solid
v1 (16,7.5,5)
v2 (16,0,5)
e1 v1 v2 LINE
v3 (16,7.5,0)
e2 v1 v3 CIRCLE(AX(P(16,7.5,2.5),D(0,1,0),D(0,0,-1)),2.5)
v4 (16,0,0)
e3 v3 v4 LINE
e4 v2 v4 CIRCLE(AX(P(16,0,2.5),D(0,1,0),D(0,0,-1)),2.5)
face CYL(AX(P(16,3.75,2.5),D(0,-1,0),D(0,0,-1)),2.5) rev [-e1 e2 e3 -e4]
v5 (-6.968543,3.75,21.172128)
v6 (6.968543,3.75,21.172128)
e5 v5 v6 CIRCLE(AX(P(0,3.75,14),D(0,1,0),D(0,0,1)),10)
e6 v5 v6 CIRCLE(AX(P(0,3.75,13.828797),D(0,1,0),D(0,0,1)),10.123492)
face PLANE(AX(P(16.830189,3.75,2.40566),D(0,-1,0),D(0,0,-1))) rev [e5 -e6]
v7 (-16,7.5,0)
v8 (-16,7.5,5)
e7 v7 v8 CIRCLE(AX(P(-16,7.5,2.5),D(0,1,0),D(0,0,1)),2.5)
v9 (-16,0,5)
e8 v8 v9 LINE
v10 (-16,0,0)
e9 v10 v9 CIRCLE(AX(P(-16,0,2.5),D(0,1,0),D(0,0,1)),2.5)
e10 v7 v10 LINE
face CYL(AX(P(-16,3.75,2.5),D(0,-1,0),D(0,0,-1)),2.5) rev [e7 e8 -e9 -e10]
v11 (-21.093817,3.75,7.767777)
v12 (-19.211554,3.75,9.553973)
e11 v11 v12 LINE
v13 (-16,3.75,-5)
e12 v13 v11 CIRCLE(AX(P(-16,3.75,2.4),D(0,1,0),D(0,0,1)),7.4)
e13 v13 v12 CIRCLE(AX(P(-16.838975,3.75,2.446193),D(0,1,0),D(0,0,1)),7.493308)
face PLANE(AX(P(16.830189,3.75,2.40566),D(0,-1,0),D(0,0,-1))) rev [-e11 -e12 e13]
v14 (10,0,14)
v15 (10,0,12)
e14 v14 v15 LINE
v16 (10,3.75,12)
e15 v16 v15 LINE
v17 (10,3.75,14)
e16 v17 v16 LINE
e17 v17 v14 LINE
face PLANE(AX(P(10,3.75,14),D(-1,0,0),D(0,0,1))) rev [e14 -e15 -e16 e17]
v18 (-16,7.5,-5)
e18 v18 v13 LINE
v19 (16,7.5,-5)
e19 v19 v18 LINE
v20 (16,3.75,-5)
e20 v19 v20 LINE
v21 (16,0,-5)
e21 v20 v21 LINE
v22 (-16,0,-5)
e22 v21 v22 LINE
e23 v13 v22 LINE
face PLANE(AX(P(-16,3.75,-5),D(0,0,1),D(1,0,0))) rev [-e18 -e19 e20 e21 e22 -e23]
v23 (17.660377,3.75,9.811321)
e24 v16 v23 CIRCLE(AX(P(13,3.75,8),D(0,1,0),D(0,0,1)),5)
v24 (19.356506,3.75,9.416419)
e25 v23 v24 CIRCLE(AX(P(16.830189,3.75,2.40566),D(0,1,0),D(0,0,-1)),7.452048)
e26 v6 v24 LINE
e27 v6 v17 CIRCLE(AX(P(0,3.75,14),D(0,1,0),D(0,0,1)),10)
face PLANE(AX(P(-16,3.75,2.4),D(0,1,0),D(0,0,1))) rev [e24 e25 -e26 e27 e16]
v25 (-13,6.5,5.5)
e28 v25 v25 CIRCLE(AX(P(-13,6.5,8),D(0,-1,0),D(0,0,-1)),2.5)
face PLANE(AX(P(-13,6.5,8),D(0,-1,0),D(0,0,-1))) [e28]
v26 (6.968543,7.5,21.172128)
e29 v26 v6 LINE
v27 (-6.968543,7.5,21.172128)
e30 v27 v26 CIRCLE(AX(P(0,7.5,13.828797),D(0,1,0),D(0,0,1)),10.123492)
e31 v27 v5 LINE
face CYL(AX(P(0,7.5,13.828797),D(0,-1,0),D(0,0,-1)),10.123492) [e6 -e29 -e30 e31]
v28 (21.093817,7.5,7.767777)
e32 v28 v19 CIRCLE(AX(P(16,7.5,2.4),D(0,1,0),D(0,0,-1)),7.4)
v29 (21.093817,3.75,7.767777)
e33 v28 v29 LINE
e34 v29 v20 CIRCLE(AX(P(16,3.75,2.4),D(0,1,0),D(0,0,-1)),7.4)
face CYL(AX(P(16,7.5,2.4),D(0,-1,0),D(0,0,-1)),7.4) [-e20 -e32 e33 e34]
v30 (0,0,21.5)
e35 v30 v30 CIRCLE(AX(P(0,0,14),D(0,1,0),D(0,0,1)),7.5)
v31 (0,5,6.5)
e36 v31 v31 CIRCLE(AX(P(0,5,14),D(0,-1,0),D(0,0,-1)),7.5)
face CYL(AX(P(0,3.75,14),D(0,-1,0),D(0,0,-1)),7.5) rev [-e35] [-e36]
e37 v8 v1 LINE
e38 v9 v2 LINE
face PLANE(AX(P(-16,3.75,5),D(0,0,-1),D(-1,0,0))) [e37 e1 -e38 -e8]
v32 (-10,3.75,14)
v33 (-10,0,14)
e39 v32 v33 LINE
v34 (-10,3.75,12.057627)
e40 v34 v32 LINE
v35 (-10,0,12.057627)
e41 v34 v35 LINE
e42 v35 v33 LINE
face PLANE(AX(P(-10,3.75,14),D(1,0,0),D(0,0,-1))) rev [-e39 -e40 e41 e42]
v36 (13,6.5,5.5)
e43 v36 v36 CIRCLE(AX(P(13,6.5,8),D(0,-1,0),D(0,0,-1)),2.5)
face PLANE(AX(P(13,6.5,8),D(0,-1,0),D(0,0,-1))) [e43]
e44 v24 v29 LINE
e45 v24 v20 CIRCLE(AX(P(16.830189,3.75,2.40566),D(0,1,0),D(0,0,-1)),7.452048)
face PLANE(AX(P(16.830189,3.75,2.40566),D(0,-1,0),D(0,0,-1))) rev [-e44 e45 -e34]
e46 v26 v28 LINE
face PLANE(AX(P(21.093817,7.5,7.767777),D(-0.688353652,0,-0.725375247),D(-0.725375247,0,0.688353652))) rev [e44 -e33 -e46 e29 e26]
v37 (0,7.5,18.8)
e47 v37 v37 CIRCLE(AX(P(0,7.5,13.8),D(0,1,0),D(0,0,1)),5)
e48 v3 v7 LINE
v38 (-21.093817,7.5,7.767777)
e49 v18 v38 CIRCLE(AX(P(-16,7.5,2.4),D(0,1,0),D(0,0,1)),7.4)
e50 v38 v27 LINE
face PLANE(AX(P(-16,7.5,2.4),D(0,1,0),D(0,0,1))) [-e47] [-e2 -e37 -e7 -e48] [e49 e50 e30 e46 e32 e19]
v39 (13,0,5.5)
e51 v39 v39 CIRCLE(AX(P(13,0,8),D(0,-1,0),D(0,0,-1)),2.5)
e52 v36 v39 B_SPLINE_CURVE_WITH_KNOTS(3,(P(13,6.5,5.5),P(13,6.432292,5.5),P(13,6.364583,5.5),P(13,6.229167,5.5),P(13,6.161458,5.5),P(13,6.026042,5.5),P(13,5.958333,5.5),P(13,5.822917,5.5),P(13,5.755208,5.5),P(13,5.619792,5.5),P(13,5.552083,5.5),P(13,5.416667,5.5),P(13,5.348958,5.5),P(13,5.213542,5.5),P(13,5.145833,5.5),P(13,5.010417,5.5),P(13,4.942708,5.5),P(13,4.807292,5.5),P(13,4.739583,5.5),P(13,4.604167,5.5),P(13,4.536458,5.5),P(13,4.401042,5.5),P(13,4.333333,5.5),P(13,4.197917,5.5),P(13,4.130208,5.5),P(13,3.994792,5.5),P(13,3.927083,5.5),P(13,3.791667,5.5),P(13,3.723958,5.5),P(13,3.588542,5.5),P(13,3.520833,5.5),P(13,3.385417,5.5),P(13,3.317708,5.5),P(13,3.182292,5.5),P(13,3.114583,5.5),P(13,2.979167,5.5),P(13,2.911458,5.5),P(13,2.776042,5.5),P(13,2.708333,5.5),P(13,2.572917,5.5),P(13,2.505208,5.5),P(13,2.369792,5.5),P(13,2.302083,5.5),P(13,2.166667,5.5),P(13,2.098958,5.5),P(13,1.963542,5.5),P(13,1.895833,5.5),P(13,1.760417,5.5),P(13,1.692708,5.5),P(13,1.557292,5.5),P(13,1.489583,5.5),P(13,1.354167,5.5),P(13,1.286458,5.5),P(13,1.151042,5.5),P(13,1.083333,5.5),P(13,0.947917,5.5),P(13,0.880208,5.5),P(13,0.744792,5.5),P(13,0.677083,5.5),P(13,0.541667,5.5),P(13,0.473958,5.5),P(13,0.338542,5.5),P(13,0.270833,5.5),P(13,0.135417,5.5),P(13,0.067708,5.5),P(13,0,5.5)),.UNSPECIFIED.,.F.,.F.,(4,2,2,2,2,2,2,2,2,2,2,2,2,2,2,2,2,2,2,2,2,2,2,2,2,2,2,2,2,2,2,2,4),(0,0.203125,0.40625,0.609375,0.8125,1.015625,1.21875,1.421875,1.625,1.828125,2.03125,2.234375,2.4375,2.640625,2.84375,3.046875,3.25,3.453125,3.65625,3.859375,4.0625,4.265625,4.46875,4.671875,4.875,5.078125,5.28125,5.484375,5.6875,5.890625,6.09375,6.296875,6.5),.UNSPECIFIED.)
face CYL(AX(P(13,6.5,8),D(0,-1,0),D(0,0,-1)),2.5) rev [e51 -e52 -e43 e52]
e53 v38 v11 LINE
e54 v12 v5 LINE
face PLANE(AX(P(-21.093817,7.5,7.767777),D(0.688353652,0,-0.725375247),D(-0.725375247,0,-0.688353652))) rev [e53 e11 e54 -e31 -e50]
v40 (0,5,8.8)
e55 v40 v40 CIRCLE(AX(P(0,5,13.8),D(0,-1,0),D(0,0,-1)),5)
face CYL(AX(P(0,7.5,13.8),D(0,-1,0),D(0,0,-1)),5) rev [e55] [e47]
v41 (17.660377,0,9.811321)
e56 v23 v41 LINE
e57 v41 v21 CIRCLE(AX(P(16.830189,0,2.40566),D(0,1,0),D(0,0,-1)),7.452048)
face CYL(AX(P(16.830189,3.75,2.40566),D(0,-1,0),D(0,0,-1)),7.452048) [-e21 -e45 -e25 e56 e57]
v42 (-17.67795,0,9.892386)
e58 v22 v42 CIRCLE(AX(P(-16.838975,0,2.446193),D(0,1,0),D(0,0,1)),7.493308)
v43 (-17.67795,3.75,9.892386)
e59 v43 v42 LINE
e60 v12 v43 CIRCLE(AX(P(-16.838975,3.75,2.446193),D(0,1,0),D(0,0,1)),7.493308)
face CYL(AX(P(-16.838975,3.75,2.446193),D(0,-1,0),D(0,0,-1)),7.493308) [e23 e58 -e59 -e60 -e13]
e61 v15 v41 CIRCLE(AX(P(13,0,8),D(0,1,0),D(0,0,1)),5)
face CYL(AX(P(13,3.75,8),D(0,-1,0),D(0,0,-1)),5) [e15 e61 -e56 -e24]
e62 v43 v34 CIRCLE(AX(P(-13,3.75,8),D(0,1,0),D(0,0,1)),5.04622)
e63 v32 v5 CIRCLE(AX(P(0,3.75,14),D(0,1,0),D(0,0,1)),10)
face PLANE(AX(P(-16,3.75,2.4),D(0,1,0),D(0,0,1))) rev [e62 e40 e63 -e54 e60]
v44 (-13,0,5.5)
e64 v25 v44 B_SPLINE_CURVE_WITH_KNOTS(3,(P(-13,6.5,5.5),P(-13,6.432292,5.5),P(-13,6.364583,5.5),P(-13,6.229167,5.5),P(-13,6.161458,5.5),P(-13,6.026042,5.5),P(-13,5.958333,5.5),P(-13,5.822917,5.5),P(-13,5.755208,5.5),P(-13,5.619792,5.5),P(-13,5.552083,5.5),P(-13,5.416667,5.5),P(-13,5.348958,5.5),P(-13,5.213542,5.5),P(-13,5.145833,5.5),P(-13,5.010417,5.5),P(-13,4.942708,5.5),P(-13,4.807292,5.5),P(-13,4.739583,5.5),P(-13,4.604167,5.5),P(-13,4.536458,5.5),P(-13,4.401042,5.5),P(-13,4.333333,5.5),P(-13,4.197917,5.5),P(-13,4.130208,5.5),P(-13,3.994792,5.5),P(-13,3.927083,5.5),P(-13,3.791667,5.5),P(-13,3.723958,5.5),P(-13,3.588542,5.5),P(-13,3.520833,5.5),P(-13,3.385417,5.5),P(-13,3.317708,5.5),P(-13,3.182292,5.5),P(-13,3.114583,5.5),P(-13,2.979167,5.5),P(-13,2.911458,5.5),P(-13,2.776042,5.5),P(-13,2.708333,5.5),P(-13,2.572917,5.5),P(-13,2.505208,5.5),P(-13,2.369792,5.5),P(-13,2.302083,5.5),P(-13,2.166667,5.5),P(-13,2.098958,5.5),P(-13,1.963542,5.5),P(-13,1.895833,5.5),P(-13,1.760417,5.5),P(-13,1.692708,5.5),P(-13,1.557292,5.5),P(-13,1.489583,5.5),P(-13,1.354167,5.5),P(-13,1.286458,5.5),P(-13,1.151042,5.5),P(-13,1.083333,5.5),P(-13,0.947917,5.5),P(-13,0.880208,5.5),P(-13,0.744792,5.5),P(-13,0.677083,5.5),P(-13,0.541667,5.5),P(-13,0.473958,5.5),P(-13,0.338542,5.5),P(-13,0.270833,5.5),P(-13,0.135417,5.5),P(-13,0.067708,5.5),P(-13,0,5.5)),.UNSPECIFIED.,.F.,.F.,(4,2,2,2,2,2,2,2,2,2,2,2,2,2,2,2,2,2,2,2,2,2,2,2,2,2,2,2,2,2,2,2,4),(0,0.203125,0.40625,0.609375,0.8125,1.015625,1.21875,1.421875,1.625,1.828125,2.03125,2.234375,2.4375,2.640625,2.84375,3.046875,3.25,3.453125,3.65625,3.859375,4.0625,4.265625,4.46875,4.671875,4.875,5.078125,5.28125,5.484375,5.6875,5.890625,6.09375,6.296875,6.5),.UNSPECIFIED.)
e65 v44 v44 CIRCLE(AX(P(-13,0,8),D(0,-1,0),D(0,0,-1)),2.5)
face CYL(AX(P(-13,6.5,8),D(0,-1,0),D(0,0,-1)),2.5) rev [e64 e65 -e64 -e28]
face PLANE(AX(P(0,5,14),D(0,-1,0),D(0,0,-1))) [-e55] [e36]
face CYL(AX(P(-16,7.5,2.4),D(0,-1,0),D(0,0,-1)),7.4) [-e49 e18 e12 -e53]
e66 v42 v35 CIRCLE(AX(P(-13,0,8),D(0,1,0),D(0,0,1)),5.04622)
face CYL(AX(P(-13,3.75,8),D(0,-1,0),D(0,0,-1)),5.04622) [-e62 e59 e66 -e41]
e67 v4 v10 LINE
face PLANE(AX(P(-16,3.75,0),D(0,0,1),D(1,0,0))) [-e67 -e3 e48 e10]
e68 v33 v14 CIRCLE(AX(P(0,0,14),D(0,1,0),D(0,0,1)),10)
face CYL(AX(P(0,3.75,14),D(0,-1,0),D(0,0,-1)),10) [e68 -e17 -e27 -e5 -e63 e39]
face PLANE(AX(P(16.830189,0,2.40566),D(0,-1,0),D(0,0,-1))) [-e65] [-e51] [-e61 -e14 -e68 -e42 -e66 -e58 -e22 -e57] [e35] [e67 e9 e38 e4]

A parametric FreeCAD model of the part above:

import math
import FreeCAD as App
import Part
import Sketcher

V = App.Vector
Q = App.Units.Quantity

doc = App.newDocument("Part")
body = doc.addObject("PartDesign::Body", "Body")

# Sketch on XZ plane
sketch1 = body.newObject("Sketcher::SketchObject", "Sketch")
sketch1.AttachmentSupport = (doc.getObject("XZ_Plane"), [""])
sketch1.MapMode = "FlatFace"
sketch1.addGeometry([
    Part.LineSegment(V(16, -5, 0), V(-16, -5, 0)),  # 0
    Part.ArcOfCircle(Part.Circle(V(-16.8, 2.4, 0), V(0, 0, 1), 7.5), math.radians(96), math.radians(276)),  # 1
    Part.ArcOfCircle(Part.Circle(V(-13, 8, 0), V(0, 0, 1), 5), math.radians(54), math.radians(158)),  # 2
    Part.LineSegment(V(-10, 12.1, 0), V(-10, 14, 0)),  # 3
    Part.ArcOfCircle(Part.Circle(V(0, 14, 0), V(0, 0, 1), 10), math.radians(0), math.radians(180)),  # 4
    Part.LineSegment(V(10, 14, 0), V(10, 12, 0)),  # 5
    Part.ArcOfCircle(Part.Circle(V(13, 8, 0), V(0, 0, 1), 5), math.radians(21), math.radians(127)),  # 6
    Part.ArcOfCircle(Part.Circle(V(16.8, 2.4, 0), V(0, 0, 1), 7.5), math.radians(-96), math.radians(84)),  # 7
    Part.Circle(V(0, 14, 0), V(0, 0, 1), 7.5),  # 8
    Part.Circle(V(13, 8, 0), V(0, 0, 1), 2.4),  # 9
    Part.Circle(V(-13, 8, 0), V(0, 0, 1), 2.4),  # 10
    Part.LineSegment(V(-16, 0, 0), V(16, 0, 0)),  # 11
    Part.ArcOfCircle(Part.Circle(V(16, 2.5, 0), V(0, 0, 1), 2.5), math.radians(-90), math.radians(90)),  # 12
    Part.LineSegment(V(16, 5, 0), V(-16, 5, 0)),  # 13
    Part.ArcOfCircle(Part.Circle(V(-16, 2.5, 0), V(0, 0, 1), 2.5), math.radians(90), math.radians(270)),  # 14
], False)
sketch1.addConstraint([
    Sketcher.Constraint("Coincident", 0, 2, 1, 2),
    Sketcher.Constraint("Coincident", 1, 1, 2, 2),
    Sketcher.Constraint("Coincident", 2, 1, 3, 1),
    Sketcher.Constraint("Tangent", 3, 2, 4, 2),
    Sketcher.Constraint("Tangent", 4, 1, 5, 1),
    Sketcher.Constraint("Coincident", 5, 2, 6, 2),
    Sketcher.Constraint("Coincident", 6, 1, 7, 2),
    Sketcher.Constraint("Coincident", 7, 1, 0, 1),
    Sketcher.Constraint("Tangent", 11, 2, 12, 1),
    Sketcher.Constraint("Tangent", 12, 2, 13, 1),
    Sketcher.Constraint("Tangent", 13, 2, 14, 1),
    Sketcher.Constraint("Tangent", 14, 2, 11, 1),
    Sketcher.Constraint("Horizontal", 0),
    Sketcher.Constraint("Vertical", 3),
    Sketcher.Constraint("Vertical", 5),
    Sketcher.Constraint("Horizontal", 11),
    Sketcher.Constraint("Horizontal", 13),
    Sketcher.Constraint("Coincident", 8, 3, 4, 3),
    Sketcher.Constraint("Coincident", 9, 3, 6, 3),
    Sketcher.Constraint("Coincident", 10, 3, 2, 3),
    Sketcher.Constraint("Equal", 9, 10),
    Sketcher.Constraint("Symmetric", 0, 2, 12, 2, -1, 1),
    Sketcher.Constraint("Symmetric", 11, 2, 14, 2, -1, 1),
    Sketcher.Constraint("Symmetric", 2, 3, 6, 3, -2),
    Sketcher.Constraint("PointOnObject", 4, 3, -2),
    Sketcher.Constraint("Vertical", 12, 3, 7, 1),
    Sketcher.Constraint("Diameter", 8, Q("15 mm")),
    Sketcher.Constraint("Radius", 4, Q("10 mm")),
    Sketcher.Constraint("Radius", 6, Q("5 mm")),
    Sketcher.Constraint("Diameter", 9, Q("4.8 mm")),
    Sketcher.Constraint("Radius", 12, Q("2.5 mm")),
    Sketcher.Constraint("DistanceX", 0, 2, 0, 1, Q("32 mm")),
    Sketcher.Constraint("DistanceY", 5, 2, 5, 1, Q("2 mm")),
    Sketcher.Constraint("DistanceX", 2, 3, -1, 1, Q("13 mm")),
    Sketcher.Constraint("DistanceY", -1, 1, 2, 3, Q("8 mm")),
    Sketcher.Constraint("Radius", 1, Q("7.493308 mm")),
    Sketcher.Constraint("Radius", 2, Q("5.04622 mm")),
    Sketcher.Constraint("Radius", 7, Q("7.452048 mm")),
    Sketcher.Constraint("DistanceX", -1, 1, 7, 3, Q("16.830189 mm")),
    Sketcher.Constraint("DistanceX", 1, 3, -1, 1, Q("16.838975 mm")),
])
pad1 = body.newObject("PartDesign::Pad", "Pad")
pad1.Profile = sketch1
pad1.Length = 3.75
pad1.Reversed = True

# Sketch on XZ plane
sketch2 = body.newObject("Sketcher::SketchObject", "Sketch001")
sketch2.AttachmentSupport = (doc.getObject("XZ_Plane"), [""])
sketch2.MapMode = "FlatFace"
sketch2.AttachmentOffset = App.Placement(V(0, 0, -3.75), App.Rotation())
sketch2.addGeometry([
    Part.LineSegment(V(16, -5, 0), V(-16, -5, 0)),  # 0
    Part.ArcOfCircle(Part.Circle(V(-16, 2.4, 0), V(0, 0, 1), 7.4), math.radians(133), math.radians(270)),  # 1
    Part.LineSegment(V(-21.1, 7.8, 0), V(-7, 21.2, 0)),  # 2
    Part.ArcOfCircle(Part.Circle(V(0, 13.8, 0), V(0, 0, 1), 10.1), math.radians(47), math.radians(133)),  # 3
    Part.LineSegment(V(7, 21.2, 0), V(21.1, 7.8, 0)),  # 4
    Part.ArcOfCircle(Part.Circle(V(16, 2.4, 0), V(0, 0, 1), 7.4), math.radians(-90), math.radians(47)),  # 5
    Part.Circle(V(0, 13.8, 0), V(0, 0, 1), 5),  # 6
    Part.LineSegment(V(-16, 0, 0), V(16, 0, 0)),  # 7
    Part.ArcOfCircle(Part.Circle(V(16, 2.5, 0), V(0, 0, 1), 2.5), math.radians(-90), math.radians(90)),  # 8
    Part.LineSegment(V(16, 5, 0), V(-16, 5, 0)),  # 9
    Part.ArcOfCircle(Part.Circle(V(-16, 2.5, 0), V(0, 0, 1), 2.5), math.radians(90), math.radians(270)),  # 10
], False)
sketch2.addConstraint([
    Sketcher.Constraint("Tangent", 0, 2, 1, 2),
    Sketcher.Constraint("Tangent", 1, 1, 2, 1),
    Sketcher.Constraint("Tangent", 2, 2, 3, 2),
    Sketcher.Constraint("Tangent", 3, 1, 4, 1),
    Sketcher.Constraint("Tangent", 4, 2, 5, 2),
    Sketcher.Constraint("Tangent", 5, 1, 0, 1),
    Sketcher.Constraint("Tangent", 7, 2, 8, 1),
    Sketcher.Constraint("Tangent", 8, 2, 9, 1),
    Sketcher.Constraint("Tangent", 9, 2, 10, 1),
    Sketcher.Constraint("Tangent", 10, 2, 7, 1),
    Sketcher.Constraint("Horizontal", 0),
    Sketcher.Constraint("Horizontal", 7),
    Sketcher.Constraint("Horizontal", 9),
    Sketcher.Constraint("Equal", 1, 5),
    Sketcher.Constraint("Symmetric", 0, 2, 8, 2, -1, 1),
    Sketcher.Constraint("Symmetric", 7, 2, 10, 2, -1, 1),
    Sketcher.Constraint("Symmetric", 2, 2, 3, 1, -2),
    Sketcher.Constraint("PointOnObject", 6, 3, -2),
    Sketcher.Constraint("Diameter", 6, Q("10 mm")),
    Sketcher.Constraint("Radius", 1, Q("7.4 mm")),
    Sketcher.Constraint("Radius", 8, Q("2.5 mm")),
    Sketcher.Constraint("DistanceX", 0, 2, 0, 1, Q("32 mm")),
    Sketcher.Constraint("DistanceY", -1, 1, 6, 3, Q("13.8 mm")),
    Sketcher.Constraint("Radius", 3, Q("10.123492 mm")),
    Sketcher.Constraint("Distance", 2, Q("19.473058 mm")),
])
pad2 = body.newObject("PartDesign::Pad", "Pad001")
pad2.Profile = sketch2
pad2.Length = 3.75
pad2.Reversed = True

# Sketch on XZ plane
sketch3 = body.newObject("Sketcher::SketchObject", "Sketch002")
sketch3.AttachmentSupport = (doc.getObject("XZ_Plane"), [""])
sketch3.MapMode = "FlatFace"
sketch3.addGeometry(Part.Circle(V(0, 14, 0), V(0, 0, 1), 8), False)
sketch3.addConstraint([
    Sketcher.Constraint("PointOnObject", 0, 3, -2),
    Sketcher.Constraint("Diameter", 0, Q("15 mm")),
    Sketcher.Constraint("DistanceY", -1, 1, 0, 3, Q("14 mm")),
])
pocket1 = body.newObject("PartDesign::Pocket", "Pocket")
pocket1.Profile = sketch3
pocket1.Length = 5

# Sketch on XZ plane
sketch4 = body.newObject("Sketcher::SketchObject", "Sketch003")
sketch4.AttachmentSupport = (doc.getObject("XZ_Plane"), [""])
sketch4.MapMode = "FlatFace"
sketch4.addGeometry([
    Part.Circle(V(-13, 8, 0), V(0, 0, 1), 2.5),
    Part.Circle(V(13, 8, 0), V(0, 0, 1), 2.5),
], False)
sketch4.addConstraint([
    Sketcher.Constraint("Equal", 0, 1),
    Sketcher.Constraint("Symmetric", 0, 3, 1, 3, -2),
    Sketcher.Constraint("Diameter", 0, Q("5 mm")),
    Sketcher.Constraint("DistanceX", 0, 3, -1, 1, Q("13 mm")),
    Sketcher.Constraint("DistanceY", -1, 1, 0, 3, Q("8 mm")),
])
pocket2 = body.newObject("PartDesign::Pocket", "Pocket001")
pocket2.Profile = sketch4
pocket2.Length = 6.5

doc.recompute()
